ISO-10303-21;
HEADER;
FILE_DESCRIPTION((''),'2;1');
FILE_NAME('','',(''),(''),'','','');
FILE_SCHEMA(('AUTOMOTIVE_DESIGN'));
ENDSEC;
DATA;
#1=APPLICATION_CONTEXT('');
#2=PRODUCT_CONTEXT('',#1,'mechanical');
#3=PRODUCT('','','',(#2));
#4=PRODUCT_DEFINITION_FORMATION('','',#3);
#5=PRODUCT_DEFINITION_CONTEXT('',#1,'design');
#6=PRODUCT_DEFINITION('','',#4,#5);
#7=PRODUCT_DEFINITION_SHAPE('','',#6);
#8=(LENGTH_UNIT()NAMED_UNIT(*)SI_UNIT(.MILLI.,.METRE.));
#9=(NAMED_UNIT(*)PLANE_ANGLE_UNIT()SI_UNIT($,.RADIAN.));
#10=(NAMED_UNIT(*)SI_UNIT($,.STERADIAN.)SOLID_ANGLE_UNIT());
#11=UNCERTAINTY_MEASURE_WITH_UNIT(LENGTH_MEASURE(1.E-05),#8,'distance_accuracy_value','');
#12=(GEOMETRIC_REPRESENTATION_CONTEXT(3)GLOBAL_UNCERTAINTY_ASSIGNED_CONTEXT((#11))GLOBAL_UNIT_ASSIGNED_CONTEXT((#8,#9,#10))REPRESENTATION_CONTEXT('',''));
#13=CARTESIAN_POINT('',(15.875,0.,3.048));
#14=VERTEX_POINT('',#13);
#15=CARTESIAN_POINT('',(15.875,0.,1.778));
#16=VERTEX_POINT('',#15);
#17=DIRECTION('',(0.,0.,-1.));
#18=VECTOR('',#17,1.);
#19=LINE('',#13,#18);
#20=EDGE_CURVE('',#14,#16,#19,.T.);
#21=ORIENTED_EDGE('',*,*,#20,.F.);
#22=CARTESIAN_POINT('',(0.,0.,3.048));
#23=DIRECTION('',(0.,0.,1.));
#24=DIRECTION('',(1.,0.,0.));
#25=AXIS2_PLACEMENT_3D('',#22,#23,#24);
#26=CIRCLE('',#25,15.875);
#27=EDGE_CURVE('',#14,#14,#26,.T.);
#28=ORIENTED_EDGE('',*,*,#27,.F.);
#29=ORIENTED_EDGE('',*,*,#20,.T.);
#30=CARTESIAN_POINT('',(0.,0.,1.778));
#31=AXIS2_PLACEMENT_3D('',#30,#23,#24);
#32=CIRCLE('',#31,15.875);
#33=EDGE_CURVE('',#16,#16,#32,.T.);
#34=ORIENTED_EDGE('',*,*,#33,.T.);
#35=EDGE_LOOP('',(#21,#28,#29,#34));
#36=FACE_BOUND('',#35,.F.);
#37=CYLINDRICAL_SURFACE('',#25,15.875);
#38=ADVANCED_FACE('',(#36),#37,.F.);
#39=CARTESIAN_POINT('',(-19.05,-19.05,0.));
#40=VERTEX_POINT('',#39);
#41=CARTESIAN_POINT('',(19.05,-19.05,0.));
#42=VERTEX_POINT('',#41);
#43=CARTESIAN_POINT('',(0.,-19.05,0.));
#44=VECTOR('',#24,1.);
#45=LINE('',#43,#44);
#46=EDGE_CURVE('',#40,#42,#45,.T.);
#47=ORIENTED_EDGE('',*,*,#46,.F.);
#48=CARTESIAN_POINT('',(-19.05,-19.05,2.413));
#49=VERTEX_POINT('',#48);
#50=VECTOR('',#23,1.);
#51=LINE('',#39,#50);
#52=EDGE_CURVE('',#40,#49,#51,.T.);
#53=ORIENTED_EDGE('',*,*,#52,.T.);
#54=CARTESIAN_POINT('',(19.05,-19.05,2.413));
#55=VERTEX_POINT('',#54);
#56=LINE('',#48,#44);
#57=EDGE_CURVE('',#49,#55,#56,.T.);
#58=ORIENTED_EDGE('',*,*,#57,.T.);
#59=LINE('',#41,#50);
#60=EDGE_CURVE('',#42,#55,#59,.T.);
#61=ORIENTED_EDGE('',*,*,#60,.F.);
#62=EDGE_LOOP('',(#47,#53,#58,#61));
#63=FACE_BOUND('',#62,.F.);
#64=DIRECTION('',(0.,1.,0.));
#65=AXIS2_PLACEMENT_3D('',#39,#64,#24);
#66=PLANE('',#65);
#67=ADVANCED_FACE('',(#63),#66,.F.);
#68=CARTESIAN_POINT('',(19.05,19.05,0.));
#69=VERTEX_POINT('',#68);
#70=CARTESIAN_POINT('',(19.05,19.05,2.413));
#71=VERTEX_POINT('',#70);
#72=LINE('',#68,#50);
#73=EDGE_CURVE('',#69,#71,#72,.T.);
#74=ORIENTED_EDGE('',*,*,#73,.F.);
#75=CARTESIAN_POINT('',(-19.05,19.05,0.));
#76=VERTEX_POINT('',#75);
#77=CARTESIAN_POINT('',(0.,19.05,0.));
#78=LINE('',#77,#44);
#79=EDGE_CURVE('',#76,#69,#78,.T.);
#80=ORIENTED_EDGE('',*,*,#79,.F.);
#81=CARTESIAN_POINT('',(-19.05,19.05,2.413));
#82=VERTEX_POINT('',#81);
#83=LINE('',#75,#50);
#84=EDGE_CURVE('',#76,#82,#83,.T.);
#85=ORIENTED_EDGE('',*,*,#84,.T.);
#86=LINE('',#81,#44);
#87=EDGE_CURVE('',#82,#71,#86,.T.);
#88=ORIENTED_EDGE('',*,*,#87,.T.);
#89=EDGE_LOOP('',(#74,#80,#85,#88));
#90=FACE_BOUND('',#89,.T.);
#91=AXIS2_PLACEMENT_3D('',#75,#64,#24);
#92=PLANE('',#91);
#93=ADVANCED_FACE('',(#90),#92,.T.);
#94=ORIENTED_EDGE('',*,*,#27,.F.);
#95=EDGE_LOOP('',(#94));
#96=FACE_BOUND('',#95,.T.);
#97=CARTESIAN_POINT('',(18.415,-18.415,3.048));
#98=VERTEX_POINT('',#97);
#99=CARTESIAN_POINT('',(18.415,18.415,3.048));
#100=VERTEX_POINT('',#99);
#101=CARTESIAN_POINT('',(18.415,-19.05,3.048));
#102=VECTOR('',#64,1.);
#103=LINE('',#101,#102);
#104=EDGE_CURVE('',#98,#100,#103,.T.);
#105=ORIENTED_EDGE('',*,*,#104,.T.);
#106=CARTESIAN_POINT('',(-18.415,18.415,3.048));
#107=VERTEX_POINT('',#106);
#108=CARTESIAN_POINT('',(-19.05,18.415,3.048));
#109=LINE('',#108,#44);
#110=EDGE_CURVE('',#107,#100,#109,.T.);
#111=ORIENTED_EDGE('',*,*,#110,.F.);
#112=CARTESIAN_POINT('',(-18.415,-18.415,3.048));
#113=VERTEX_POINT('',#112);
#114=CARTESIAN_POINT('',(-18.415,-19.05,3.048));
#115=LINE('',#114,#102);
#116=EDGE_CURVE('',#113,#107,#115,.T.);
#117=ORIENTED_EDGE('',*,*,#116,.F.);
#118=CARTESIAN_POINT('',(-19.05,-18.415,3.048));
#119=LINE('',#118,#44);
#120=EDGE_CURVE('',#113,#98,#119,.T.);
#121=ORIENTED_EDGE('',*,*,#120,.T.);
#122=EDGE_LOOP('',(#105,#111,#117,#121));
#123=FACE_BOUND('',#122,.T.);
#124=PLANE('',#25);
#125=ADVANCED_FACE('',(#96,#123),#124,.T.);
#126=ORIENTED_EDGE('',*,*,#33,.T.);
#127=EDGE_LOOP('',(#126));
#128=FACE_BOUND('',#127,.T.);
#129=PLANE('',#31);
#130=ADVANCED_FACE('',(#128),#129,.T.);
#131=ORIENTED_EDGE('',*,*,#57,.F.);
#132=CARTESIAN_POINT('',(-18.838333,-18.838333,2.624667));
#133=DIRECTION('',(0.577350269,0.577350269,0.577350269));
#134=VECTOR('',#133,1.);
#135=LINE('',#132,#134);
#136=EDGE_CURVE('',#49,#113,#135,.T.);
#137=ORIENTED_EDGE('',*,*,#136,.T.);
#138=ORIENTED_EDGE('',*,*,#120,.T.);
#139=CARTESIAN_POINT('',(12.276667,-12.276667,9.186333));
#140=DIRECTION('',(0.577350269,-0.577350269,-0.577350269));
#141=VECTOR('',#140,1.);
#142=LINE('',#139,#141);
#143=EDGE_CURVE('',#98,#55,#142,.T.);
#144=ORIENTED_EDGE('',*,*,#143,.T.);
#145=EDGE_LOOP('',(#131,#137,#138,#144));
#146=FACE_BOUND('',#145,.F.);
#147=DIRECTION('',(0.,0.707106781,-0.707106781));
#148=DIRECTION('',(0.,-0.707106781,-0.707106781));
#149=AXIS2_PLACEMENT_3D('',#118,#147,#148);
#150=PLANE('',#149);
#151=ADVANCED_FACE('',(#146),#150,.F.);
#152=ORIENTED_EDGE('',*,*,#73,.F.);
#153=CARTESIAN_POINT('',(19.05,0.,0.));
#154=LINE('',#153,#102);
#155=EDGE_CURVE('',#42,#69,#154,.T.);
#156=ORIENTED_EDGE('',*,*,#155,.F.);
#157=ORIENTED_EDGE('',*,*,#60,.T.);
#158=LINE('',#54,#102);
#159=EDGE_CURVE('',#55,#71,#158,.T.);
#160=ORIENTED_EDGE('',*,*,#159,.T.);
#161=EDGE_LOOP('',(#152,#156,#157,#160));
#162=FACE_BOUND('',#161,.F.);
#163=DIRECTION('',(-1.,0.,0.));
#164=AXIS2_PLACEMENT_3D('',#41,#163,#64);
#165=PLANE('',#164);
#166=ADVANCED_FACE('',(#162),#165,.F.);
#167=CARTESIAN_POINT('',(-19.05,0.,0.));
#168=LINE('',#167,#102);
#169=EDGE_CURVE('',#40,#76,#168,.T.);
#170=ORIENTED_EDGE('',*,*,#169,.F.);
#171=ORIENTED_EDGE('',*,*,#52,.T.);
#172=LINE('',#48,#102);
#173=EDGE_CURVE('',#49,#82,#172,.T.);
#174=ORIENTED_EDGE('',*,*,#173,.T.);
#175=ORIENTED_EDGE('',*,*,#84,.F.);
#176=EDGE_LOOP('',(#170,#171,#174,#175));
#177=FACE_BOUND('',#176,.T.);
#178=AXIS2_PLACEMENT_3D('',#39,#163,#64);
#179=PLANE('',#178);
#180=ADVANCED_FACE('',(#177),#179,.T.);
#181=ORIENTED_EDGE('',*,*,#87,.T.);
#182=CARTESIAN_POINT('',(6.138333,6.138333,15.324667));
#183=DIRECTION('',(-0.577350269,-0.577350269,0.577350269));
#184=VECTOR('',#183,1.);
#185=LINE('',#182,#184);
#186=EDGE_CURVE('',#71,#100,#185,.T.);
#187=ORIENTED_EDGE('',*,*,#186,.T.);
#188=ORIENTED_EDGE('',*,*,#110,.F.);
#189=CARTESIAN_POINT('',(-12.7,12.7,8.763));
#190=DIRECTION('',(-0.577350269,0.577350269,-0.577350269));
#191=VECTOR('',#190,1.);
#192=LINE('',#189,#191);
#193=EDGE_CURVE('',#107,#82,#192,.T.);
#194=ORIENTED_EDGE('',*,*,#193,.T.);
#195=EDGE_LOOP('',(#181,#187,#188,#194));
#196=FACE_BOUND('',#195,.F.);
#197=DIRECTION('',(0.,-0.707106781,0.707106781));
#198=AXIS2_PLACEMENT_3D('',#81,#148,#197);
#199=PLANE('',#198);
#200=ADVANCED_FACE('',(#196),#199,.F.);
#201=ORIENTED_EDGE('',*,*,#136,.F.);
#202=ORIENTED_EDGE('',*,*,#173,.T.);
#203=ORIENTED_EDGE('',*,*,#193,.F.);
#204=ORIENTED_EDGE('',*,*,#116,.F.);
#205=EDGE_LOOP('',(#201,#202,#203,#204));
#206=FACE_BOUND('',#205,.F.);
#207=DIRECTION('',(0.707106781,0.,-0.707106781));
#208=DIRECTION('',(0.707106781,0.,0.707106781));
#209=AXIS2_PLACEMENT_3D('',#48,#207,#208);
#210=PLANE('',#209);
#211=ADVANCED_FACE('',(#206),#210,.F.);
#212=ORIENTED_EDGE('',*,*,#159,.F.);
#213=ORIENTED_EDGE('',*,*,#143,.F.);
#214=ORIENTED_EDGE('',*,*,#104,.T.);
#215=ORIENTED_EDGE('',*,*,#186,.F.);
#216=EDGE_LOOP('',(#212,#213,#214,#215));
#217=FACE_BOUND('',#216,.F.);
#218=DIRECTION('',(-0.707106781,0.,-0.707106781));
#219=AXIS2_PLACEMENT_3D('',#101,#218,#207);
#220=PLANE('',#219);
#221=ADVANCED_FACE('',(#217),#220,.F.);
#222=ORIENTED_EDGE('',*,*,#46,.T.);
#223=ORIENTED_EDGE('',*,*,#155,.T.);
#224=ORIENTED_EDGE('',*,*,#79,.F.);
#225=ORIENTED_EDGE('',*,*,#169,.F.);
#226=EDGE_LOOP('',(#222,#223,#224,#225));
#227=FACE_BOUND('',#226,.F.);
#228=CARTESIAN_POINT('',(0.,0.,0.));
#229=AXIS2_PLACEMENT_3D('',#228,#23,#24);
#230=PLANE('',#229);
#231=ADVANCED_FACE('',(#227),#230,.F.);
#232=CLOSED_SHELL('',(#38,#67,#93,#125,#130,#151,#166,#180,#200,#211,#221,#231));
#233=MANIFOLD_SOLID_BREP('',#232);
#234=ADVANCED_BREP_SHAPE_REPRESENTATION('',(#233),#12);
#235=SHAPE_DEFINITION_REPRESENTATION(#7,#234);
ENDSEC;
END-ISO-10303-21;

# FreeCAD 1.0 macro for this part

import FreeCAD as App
import Part
import Sketcher

V = App.Vector
Q = App.Units.Quantity

doc = App.newDocument("Part")
body = doc.addObject("PartDesign::Body", "Body")

sketch1 = body.newObject("Sketcher::SketchObject", "Sketch")
sketch1.AttachmentSupport = (doc.getObject("XY_Plane"), [""])
sketch1.MapMode = "FlatFace"
sketch1.addGeometry([
    Part.LineSegment(V(-19.05, 19.05, 0), V(-19.05, -19.05, 0)),
    Part.LineSegment(V(-19.05, -19.05, 0), V(19.05, -19.05, 0)),
    Part.LineSegment(V(19.05, -19.05, 0), V(19.05, 19.05, 0)),
    Part.LineSegment(V(19.05, 19.05, 0), V(-19.05, 19.05, 0)),
], False)
sketch1.addConstraint([
    Sketcher.Constraint("Coincident", 0, 2, 1, 1),
    Sketcher.Constraint("Coincident", 1, 2, 2, 1),
    Sketcher.Constraint("Coincident", 2, 2, 3, 1),
    Sketcher.Constraint("Coincident", 3, 2, 0, 1),
    Sketcher.Constraint("Vertical", 0),
    Sketcher.Constraint("Horizontal", 1),
    Sketcher.Constraint("Vertical", 2),
    Sketcher.Constraint("Horizontal", 3),
    Sketcher.Constraint("Symmetric", 0, 2, 2, 2, -1, 1),
    Sketcher.Constraint("Equal", 3, 0),
    Sketcher.Constraint("DistanceX", 1, 1, 1, 2, Q("1.5 in")),
])
pad1 = body.newObject("PartDesign::Pad", "Pad")
pad1.Profile = sketch1
pad1.Length = Q("0.12 in")

sketch2 = body.newObject("Sketcher::SketchObject", "Sketch001")
sketch2.AttachmentSupport = (doc.getObject("XY_Plane"), [""])
sketch2.MapMode = "FlatFace"
sketch2.AttachmentOffset = App.Placement(V(0, 0, 0.12 * 25.4), App.Rotation())
sketch2.addGeometry(Part.Circle(V(0, 0, 0), V(0, 0, 1), 15.875), False)
sketch2.addConstraint([
    Sketcher.Constraint("Coincident", 0, 3, -1, 1),
    Sketcher.Constraint("Diameter", 0, Q("1.25 in")),
])
pocket1 = body.newObject("PartDesign::Pocket", "Pocket")
pocket1.Profile = sketch2
pocket1.Length = Q("0.05 in")

sketch3 = body.newObject("Sketcher::SketchObject", "Sketch002")
sketch3.AttachmentSupport = (doc.getObject("XZ_Plane"), [""])
sketch3.MapMode = "FlatFace"
sketch3.AttachmentOffset = App.Placement(V(0, 0, 0.75 * 25.4), App.Rotation())
sketch3.addGeometry([
    Part.LineSegment(V(-18.415, 3.048, 0), V(-19.05, 3.048, 0)),
    Part.LineSegment(V(-19.05, 3.048, 0), V(-19.05, 2.413, 0)),
    Part.LineSegment(V(-19.05, 2.413, 0), V(-18.415, 3.048, 0)),
    Part.LineSegment(V(19.05, 3.048, 0), V(18.415, 3.048, 0)),
    Part.LineSegment(V(18.415, 3.048, 0), V(19.05, 2.413, 0)),
    Part.LineSegment(V(19.05, 2.413, 0), V(19.05, 3.048, 0)),
], False)
sketch3.addConstraint([
    Sketcher.Constraint("Coincident", 0, 2, 1, 1),
    Sketcher.Constraint("Coincident", 1, 2, 2, 1),
    Sketcher.Constraint("Coincident", 2, 2, 0, 1),
    Sketcher.Constraint("Coincident", 3, 2, 4, 1),
    Sketcher.Constraint("Coincident", 4, 2, 5, 1),
    Sketcher.Constraint("Coincident", 5, 2, 3, 1),
    Sketcher.Constraint("Horizontal", 0),
    Sketcher.Constraint("Vertical", 1),
    Sketcher.Constraint("Horizontal", 3),
    Sketcher.Constraint("Vertical", 5),
    Sketcher.Constraint("Symmetric", 2, 2, 3, 2, -2),
    Sketcher.Constraint("Symmetric", 1, 2, 4, 2, -2),
    Sketcher.Constraint("Perpendicular", 2, 4),
    Sketcher.Constraint("DistanceX", 1, 2, 4, 2, Q("1.5 in")),
    Sketcher.Constraint("DistanceX", 0, 2, 0, 1, Q("0.025 in")),
    Sketcher.Constraint("DistanceY", -1, 1, 0, 2, Q("0.12 in")),
])
pocket2 = body.newObject("PartDesign::Pocket", "Pocket001")
pocket2.Profile = sketch3
pocket2.Type = "ThroughAll"

sketch4 = body.newObject("Sketcher::SketchObject", "Sketch003")
sketch4.AttachmentSupport = (doc.getObject("YZ_Plane"), [""])
sketch4.MapMode = "FlatFace"
sketch4.AttachmentOffset = App.Placement(V(0, 0, -0.75 * 25.4), App.Rotation())
sketch4.addGeometry([
    Part.LineSegment(V(18.415, 3.048, 0), V(19.05, 3.048, 0)),
    Part.LineSegment(V(19.05, 3.048, 0), V(19.05, 2.413, 0)),
    Part.LineSegment(V(19.05, 2.413, 0), V(18.415, 3.048, 0)),
    Part.LineSegment(V(-18.415, 3.048, 0), V(-19.05, 2.413, 0)),
    Part.LineSegment(V(-19.05, 2.413, 0), V(-19.05, 3.048, 0)),
    Part.LineSegment(V(-19.05, 3.048, 0), V(-18.415, 3.048, 0)),
], False)
sketch4.addConstraint([
    Sketcher.Constraint("Coincident", 0, 2, 1, 1),
    Sketcher.Constraint("Coincident", 1, 2, 2, 1),
    Sketcher.Constraint("Coincident", 2, 2, 0, 1),
    Sketcher.Constraint("Coincident", 3, 2, 4, 1),
    Sketcher.Constraint("Coincident", 4, 2, 5, 1),
    Sketcher.Constraint("Coincident", 5, 2, 3, 1),
    Sketcher.Constraint("Horizontal", 0),
    Sketcher.Constraint("Vertical", 1),
    Sketcher.Constraint("Vertical", 4),
    Sketcher.Constraint("Horizontal", 5),
    Sketcher.Constraint("Symmetric", 1, 2, 3, 2, -2),
    Sketcher.Constraint("Symmetric", 2, 2, 5, 2, -2),
    Sketcher.Constraint("Perpendicular", 2, 3),
    Sketcher.Constraint("DistanceX", 3, 2, 1, 2, Q("1.5 in")),
    Sketcher.Constraint("DistanceX", 0, 1, 0, 2, Q("0.025 in")),
    Sketcher.Constraint("DistanceY", -1, 1, 0, 2, Q("0.12 in")),
])
pocket3 = body.newObject("PartDesign::Pocket", "Pocket002")
pocket3.Profile = sketch4
pocket3.Type = "ThroughAll"
pocket3.Reversed = True

doc.recompute()
